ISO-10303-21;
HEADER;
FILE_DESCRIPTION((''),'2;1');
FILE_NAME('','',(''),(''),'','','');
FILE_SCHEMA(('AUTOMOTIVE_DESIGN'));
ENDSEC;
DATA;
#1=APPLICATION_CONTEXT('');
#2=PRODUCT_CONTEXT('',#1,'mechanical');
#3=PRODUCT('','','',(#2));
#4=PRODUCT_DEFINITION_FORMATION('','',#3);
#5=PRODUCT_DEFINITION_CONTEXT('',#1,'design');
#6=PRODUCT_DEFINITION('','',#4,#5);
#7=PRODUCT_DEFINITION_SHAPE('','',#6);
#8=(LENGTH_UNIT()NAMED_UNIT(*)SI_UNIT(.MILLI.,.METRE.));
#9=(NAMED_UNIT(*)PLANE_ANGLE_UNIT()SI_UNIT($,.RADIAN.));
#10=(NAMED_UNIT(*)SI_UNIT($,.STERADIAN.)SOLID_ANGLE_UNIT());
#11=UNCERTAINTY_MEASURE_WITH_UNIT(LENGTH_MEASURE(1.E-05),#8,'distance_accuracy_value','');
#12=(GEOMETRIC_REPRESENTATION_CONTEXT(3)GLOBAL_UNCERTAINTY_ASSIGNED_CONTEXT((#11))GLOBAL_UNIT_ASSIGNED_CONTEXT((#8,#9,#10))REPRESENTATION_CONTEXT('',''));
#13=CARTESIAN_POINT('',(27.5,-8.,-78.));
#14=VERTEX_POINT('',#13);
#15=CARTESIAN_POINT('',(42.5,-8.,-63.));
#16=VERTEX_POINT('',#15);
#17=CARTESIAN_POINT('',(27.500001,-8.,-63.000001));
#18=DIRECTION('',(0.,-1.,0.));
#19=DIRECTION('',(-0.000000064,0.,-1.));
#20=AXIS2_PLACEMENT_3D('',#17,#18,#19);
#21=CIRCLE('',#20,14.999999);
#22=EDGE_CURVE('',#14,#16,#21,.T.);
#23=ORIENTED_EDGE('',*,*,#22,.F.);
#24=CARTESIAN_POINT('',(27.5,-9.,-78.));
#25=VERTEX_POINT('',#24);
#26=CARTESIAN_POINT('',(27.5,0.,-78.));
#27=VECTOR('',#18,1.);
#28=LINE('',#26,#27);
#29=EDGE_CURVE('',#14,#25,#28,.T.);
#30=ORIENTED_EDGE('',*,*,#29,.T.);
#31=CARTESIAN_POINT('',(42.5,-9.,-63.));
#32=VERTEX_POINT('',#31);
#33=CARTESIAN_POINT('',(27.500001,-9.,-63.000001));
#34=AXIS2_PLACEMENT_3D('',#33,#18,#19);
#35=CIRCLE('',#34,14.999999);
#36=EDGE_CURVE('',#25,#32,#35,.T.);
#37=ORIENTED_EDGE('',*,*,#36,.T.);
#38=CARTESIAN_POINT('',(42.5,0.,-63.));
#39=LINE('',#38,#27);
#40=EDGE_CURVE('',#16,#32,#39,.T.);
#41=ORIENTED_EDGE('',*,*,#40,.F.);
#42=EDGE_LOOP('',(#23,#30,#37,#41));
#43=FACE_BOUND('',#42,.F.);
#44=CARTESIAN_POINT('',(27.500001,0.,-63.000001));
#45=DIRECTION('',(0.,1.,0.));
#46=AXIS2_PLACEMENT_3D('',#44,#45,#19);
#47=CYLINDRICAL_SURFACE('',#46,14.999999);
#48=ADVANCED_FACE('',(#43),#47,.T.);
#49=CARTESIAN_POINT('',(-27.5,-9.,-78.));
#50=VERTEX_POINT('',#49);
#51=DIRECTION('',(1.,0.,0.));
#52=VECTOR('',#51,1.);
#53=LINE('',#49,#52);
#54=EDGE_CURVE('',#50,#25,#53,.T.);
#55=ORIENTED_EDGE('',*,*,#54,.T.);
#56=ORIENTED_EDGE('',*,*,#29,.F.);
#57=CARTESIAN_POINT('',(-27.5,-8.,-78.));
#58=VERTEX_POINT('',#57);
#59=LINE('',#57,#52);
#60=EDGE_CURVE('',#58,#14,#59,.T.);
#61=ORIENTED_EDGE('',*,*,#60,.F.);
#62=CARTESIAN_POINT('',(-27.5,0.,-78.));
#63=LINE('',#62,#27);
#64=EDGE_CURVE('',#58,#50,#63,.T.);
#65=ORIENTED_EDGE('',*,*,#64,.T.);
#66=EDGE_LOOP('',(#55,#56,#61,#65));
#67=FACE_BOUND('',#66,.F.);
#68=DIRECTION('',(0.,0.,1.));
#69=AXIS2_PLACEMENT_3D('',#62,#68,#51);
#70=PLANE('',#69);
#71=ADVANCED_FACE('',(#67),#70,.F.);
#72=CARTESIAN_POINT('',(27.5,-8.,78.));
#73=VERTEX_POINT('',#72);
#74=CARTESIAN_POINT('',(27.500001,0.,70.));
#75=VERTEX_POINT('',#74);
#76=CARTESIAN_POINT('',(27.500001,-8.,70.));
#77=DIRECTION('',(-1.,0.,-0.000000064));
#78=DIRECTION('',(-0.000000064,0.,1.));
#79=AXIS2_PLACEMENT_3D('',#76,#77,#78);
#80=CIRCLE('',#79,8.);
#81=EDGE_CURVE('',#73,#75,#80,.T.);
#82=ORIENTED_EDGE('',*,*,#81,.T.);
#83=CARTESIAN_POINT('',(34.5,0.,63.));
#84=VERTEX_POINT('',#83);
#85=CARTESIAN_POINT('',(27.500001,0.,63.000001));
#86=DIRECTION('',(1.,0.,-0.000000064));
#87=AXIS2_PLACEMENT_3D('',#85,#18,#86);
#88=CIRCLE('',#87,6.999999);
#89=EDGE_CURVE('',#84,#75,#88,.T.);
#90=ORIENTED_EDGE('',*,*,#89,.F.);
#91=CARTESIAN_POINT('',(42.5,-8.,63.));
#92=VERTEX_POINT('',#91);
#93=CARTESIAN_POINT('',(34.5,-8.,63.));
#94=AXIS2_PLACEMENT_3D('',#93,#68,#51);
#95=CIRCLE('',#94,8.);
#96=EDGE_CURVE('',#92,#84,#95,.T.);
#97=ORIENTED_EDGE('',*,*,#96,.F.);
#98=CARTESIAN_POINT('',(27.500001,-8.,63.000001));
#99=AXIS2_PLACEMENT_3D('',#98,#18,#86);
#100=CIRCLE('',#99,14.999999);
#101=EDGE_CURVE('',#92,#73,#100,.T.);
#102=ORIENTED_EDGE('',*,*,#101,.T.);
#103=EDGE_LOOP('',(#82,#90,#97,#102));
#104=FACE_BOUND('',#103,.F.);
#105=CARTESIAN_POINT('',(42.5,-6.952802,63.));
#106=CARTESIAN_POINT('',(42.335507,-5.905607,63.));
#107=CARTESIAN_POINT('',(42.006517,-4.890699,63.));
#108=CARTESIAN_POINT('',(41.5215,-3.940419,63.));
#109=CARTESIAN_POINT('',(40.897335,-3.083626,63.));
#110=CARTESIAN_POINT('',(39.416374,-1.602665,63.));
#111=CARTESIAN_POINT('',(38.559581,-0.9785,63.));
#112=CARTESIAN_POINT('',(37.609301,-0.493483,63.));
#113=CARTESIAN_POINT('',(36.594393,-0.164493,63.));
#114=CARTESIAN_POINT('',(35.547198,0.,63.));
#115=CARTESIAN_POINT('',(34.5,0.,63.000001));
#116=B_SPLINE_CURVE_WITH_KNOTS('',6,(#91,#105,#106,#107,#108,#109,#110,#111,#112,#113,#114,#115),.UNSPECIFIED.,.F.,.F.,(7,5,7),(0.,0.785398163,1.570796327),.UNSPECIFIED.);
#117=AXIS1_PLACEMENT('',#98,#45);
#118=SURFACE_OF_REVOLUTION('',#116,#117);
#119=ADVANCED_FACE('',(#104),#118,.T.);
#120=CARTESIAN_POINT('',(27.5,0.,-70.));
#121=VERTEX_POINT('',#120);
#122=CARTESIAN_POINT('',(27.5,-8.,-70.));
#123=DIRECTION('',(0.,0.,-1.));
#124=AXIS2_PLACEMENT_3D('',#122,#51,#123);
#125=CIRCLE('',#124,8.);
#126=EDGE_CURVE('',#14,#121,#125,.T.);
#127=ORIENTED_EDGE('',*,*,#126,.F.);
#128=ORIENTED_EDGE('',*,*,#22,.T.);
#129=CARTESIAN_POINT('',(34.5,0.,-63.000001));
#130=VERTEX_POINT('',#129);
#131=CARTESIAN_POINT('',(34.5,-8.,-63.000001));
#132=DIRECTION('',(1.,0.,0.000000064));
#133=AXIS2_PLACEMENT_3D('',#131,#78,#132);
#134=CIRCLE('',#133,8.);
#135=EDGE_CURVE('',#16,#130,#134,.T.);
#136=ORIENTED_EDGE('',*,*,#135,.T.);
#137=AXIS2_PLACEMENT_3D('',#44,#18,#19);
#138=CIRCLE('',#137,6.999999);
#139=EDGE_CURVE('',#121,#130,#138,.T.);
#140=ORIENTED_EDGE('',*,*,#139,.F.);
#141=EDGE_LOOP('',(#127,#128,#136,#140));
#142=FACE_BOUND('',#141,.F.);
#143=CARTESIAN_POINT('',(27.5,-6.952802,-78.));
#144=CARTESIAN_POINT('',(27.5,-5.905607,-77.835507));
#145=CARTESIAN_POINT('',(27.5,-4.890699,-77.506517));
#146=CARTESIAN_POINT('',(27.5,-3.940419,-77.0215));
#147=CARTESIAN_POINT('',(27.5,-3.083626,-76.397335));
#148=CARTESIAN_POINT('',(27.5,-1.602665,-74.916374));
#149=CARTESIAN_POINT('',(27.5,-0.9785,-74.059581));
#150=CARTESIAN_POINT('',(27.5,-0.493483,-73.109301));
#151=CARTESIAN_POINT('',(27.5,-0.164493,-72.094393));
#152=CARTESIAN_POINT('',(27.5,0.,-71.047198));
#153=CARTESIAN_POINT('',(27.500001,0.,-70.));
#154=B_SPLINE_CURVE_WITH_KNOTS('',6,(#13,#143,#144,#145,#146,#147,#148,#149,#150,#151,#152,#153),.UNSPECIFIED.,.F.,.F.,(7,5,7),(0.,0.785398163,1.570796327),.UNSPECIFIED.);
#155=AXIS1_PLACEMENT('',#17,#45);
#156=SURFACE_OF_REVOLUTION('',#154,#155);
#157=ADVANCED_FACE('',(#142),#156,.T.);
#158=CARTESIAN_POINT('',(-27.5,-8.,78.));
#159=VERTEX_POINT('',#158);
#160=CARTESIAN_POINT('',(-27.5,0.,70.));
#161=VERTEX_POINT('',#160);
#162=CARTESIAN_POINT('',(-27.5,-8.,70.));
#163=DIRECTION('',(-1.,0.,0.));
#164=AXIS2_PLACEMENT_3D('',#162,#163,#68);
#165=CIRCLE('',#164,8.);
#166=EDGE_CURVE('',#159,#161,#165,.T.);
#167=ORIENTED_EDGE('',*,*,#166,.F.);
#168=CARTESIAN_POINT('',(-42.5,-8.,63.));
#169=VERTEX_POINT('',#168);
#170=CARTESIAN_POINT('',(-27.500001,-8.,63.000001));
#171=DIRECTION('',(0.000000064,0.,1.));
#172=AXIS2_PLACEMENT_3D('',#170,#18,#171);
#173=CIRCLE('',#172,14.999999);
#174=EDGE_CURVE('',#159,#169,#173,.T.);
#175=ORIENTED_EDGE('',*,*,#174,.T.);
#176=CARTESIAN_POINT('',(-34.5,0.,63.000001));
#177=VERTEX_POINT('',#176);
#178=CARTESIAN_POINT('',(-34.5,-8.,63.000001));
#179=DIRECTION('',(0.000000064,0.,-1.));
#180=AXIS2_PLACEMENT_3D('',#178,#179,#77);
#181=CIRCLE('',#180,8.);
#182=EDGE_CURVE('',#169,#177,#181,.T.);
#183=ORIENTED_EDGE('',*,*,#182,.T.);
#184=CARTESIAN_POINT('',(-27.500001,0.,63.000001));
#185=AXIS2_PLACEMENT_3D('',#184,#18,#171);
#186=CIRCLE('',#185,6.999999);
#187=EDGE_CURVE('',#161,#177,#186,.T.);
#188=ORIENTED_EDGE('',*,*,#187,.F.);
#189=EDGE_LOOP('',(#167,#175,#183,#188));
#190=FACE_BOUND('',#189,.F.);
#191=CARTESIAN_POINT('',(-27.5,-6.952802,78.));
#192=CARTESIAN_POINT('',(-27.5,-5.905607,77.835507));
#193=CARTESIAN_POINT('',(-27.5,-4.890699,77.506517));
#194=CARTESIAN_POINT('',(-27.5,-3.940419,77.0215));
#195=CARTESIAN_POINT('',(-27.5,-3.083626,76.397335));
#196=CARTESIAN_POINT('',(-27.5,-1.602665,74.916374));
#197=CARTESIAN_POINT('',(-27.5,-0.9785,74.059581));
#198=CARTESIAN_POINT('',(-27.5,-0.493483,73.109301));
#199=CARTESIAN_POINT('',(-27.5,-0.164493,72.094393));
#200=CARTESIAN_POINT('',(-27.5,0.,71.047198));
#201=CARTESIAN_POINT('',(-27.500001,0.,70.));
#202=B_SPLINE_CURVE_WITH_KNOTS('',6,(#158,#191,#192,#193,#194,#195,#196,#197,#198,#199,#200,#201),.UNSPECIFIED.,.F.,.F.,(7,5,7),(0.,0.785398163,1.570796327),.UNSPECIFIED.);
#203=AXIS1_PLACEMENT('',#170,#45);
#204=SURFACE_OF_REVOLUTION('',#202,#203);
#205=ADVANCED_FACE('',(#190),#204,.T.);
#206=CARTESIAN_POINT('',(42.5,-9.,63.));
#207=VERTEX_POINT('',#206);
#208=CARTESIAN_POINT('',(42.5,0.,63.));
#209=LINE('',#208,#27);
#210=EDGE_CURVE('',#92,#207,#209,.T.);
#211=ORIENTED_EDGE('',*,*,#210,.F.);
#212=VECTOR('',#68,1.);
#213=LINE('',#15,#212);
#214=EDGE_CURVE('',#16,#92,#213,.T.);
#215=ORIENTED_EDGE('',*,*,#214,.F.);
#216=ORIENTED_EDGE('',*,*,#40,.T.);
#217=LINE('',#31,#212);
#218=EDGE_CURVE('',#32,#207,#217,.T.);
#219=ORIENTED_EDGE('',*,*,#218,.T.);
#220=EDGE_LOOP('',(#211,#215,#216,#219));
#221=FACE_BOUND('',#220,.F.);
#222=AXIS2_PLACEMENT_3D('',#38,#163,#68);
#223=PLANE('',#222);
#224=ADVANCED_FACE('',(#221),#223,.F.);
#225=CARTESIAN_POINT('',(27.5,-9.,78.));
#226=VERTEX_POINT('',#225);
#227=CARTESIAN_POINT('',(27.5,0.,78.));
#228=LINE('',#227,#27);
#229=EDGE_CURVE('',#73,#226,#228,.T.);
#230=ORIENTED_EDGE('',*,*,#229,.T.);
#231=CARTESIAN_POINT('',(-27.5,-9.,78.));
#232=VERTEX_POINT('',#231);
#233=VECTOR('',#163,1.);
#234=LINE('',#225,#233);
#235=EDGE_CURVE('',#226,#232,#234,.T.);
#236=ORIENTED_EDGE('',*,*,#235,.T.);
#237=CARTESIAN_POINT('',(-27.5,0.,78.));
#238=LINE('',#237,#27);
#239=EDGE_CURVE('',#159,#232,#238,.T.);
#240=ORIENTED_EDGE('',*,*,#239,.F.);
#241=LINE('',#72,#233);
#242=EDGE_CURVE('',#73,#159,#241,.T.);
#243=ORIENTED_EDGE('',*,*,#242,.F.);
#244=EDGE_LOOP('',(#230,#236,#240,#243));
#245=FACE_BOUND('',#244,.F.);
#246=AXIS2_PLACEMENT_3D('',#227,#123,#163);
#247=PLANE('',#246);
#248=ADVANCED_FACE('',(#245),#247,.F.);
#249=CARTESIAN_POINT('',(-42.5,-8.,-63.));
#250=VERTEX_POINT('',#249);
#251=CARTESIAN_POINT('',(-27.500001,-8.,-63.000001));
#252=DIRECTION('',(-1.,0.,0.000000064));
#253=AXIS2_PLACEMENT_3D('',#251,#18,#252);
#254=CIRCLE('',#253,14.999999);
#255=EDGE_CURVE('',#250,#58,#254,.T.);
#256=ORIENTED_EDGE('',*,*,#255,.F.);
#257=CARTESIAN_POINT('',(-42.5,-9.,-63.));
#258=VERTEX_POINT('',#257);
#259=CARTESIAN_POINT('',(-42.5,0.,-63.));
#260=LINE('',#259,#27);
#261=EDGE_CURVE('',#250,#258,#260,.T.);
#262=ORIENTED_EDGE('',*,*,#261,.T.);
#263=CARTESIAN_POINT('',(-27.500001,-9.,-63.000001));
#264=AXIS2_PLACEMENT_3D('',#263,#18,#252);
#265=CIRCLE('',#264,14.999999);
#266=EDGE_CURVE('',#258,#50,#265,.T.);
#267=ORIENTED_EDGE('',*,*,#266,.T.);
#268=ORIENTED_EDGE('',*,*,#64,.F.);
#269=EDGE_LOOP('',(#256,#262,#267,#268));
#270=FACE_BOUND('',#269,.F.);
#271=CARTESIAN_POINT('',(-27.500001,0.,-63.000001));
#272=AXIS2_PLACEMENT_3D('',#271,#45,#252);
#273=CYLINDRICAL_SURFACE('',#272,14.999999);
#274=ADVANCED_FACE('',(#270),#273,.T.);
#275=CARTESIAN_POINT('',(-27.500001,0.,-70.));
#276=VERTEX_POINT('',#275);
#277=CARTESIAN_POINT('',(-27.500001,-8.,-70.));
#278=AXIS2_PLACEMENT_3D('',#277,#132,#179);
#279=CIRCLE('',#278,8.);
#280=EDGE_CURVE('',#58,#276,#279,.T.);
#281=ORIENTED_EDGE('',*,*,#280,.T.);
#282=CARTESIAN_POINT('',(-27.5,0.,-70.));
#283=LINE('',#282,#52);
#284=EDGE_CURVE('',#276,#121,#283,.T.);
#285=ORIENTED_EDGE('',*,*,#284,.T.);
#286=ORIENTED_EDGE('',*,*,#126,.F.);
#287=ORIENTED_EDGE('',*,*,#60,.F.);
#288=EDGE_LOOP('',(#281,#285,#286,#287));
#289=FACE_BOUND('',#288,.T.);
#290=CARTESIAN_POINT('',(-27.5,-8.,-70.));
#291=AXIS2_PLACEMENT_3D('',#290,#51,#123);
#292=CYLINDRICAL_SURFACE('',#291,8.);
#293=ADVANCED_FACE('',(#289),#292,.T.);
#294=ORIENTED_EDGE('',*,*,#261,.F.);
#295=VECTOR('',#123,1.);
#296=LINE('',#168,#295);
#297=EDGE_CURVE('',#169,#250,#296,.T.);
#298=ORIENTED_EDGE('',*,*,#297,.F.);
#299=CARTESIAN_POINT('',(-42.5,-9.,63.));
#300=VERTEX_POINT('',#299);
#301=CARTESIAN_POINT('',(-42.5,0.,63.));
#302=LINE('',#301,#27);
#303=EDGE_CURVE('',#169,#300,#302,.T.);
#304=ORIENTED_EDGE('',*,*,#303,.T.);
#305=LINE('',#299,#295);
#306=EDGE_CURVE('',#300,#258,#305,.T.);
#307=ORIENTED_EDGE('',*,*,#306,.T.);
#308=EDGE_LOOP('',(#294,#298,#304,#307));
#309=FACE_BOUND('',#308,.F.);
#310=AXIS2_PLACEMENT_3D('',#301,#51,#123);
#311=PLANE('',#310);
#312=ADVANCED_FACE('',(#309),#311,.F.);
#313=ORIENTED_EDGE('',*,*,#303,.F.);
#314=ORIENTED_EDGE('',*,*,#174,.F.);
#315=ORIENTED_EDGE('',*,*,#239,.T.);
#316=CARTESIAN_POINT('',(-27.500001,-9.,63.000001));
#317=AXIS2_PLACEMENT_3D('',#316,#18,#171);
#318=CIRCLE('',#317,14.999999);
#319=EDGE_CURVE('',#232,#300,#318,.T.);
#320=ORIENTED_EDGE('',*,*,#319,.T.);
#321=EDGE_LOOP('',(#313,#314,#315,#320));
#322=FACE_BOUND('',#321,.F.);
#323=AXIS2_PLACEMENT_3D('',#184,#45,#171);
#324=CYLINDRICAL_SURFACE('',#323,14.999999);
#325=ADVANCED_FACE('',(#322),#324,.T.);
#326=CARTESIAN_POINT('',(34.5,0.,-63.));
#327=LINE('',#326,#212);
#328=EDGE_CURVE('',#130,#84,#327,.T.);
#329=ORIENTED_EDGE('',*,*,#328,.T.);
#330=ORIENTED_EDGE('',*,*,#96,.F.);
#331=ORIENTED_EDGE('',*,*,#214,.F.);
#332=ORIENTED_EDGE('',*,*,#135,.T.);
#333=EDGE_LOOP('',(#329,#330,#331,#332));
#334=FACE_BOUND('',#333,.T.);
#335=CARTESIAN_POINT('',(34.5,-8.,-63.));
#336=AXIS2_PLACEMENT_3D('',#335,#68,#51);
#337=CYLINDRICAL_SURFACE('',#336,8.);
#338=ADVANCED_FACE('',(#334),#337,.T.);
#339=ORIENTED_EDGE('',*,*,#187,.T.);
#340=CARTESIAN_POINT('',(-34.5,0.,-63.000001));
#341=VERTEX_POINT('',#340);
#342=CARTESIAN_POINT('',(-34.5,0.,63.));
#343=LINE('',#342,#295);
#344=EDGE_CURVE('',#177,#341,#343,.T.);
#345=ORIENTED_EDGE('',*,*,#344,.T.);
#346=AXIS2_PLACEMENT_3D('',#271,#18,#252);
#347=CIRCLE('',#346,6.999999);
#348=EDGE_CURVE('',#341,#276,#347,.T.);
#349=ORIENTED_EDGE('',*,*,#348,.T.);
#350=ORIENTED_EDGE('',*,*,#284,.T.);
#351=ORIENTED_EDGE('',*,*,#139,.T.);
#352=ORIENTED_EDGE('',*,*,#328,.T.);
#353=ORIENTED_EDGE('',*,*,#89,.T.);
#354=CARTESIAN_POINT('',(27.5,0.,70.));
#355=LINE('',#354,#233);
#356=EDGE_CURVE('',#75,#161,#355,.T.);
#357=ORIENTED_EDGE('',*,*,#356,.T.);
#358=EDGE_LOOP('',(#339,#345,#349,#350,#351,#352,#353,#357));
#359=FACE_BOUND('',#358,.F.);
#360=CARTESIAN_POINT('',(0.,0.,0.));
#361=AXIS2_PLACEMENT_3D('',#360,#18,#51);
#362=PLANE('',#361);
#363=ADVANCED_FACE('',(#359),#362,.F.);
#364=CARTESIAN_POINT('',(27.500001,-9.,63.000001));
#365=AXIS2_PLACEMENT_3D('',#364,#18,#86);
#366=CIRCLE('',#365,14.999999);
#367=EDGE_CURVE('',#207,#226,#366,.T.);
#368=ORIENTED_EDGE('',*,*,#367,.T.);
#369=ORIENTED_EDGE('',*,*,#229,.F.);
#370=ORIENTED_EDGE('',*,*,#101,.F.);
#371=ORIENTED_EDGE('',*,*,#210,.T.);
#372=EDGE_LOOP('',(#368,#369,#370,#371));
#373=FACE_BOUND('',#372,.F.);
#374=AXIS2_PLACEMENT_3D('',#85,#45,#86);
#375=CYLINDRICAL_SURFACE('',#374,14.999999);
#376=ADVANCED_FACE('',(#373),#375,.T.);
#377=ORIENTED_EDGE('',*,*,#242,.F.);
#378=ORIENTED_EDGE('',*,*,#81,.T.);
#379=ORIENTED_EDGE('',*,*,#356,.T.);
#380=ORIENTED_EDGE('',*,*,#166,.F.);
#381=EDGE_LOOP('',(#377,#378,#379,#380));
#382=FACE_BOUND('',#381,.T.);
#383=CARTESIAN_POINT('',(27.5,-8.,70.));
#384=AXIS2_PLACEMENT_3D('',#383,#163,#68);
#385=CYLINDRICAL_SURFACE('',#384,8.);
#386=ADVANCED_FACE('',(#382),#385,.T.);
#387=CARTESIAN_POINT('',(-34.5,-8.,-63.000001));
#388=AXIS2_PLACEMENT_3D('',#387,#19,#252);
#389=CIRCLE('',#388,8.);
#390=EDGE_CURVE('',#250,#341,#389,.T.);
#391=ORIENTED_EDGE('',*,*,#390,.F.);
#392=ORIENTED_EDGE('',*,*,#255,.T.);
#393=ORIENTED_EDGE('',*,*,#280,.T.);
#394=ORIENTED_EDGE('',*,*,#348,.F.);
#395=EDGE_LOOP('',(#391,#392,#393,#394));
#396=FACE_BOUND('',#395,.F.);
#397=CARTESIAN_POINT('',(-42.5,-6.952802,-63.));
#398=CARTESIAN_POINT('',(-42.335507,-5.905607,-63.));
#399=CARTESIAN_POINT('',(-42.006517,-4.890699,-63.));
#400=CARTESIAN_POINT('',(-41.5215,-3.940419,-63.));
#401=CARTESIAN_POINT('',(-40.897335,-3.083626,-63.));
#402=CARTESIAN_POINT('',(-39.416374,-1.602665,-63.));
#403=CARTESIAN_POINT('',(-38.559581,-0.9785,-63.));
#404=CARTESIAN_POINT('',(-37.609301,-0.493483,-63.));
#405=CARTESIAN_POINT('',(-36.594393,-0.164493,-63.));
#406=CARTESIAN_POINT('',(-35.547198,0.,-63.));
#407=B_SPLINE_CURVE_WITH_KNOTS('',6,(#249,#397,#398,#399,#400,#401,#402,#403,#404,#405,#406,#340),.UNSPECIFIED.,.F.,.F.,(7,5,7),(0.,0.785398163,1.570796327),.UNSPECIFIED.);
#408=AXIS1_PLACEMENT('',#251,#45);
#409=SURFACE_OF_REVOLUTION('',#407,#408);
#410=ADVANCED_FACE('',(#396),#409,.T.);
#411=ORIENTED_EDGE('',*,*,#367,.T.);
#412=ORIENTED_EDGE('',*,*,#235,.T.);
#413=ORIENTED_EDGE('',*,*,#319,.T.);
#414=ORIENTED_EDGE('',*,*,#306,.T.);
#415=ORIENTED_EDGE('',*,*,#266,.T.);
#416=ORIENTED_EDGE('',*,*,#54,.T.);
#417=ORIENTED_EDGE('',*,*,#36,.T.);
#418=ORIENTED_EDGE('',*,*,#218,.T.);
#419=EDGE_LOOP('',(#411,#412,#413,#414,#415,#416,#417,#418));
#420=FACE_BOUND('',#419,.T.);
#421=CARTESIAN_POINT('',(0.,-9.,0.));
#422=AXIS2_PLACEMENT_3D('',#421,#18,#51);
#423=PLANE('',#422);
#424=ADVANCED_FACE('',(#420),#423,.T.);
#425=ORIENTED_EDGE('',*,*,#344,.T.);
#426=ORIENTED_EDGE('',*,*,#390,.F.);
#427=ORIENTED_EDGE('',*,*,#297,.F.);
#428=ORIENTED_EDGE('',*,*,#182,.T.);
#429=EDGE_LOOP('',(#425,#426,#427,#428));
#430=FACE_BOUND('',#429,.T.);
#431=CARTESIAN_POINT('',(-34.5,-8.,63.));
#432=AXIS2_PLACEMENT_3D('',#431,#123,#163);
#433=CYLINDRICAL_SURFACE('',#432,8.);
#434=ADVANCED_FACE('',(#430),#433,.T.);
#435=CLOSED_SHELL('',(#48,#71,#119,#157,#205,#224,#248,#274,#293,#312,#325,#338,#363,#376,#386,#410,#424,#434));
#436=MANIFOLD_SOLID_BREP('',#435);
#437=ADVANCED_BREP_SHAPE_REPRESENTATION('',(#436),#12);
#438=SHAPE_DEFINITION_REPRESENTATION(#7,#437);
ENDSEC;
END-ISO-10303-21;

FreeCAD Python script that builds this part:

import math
import FreeCAD as App
import Part
import Sketcher

V = App.Vector


def edges_at(feature, points):
    """Names of the edges that pass closest to the given points."""
    edges = feature.Shape.Edges
    near = lambda p: min(range(len(edges)), key=lambda i: edges[i].distToShape(Part.Vertex(*p))[0])
    return sorted({f"Edge{near(p) + 1}" for p in points})

doc = App.newDocument("Part")
body = doc.addObject("PartDesign::Body", "Body")

# Sketch on XZ plane
sketch1 = body.newObject("Sketcher::SketchObject", "Sketch")
sketch1.AttachmentSupport = (doc.getObject("XZ_Plane"), [""])
sketch1.MapMode = "FlatFace"
sketch1.addGeometry([
    Part.ArcOfCircle(Part.Circle(V(-28, -63, 0), V(0, 0, 1), 15), math.radians(180), math.radians(270)),  # 0
    Part.LineSegment(V(-28, -78, 0), V(28, -78, 0)),  # 1
    Part.ArcOfCircle(Part.Circle(V(28, -63, 0), V(0, 0, 1), 15), math.radians(-90), math.radians(0)),  # 2
    Part.LineSegment(V(42, -63, 0), V(42, 63, 0)),  # 3
    Part.ArcOfCircle(Part.Circle(V(28, 63, 0), V(0, 0, 1), 15), math.radians(0), math.radians(90)),  # 4
    Part.LineSegment(V(28, 78, 0), V(-28, 78, 0)),  # 5
    Part.ArcOfCircle(Part.Circle(V(-28, 63, 0), V(0, 0, 1), 15), math.radians(90), math.radians(180)),  # 6
    Part.LineSegment(V(-42, 63, 0), V(-42, -63, 0)),  # 7
], False)
sketch1.addConstraint([
    Sketcher.Constraint("Tangent", 0, 2, 1, 1),
    Sketcher.Constraint("Tangent", 1, 2, 2, 1),
    Sketcher.Constraint("Tangent", 2, 2, 3, 1),
    Sketcher.Constraint("Tangent", 3, 2, 4, 1),
    Sketcher.Constraint("Tangent", 4, 2, 5, 1),
    Sketcher.Constraint("Tangent", 5, 2, 6, 1),
    Sketcher.Constraint("Tangent", 6, 2, 7, 1),
    Sketcher.Constraint("Tangent", 7, 2, 0, 1),
    Sketcher.Constraint("Horizontal", 1),
    Sketcher.Constraint("Vertical", 3),
    Sketcher.Constraint("Horizontal", 5),
    Sketcher.Constraint("Vertical", 7),
    Sketcher.Constraint("Equal", 0, 2),
    Sketcher.Constraint("Equal", 2, 4),
    Sketcher.Constraint("Equal", 4, 6),
    Sketcher.Constraint("Symmetric", 0, 3, 4, 3, -1, 1),
    Sketcher.Constraint("Radius", 0, 14.999999),
    Sketcher.Constraint("DistanceX", 1, 1, 1, 2, 55.0),
    Sketcher.Constraint("DistanceY", 3, 1, 3, 2, 126.0),
])
pad1 = body.newObject("PartDesign::Pad", "Pad")
pad1.Profile = sketch1
pad1.Length = 9
doc.recompute()

fillet = body.newObject("PartDesign::Fillet", "Fillet")
fillet.Base = (pad1, edges_at(pad1, [
    (-38.107, 0, -73.607),
    (0, 0, -78),
    (38.107, 0, -73.607),
    (42.5, 0, 0),
    (38.107, 0, 73.607),
    (0, 0, 78),
    (-38.107, 0, 73.607),
    (-42.5, 0, 0),
]))
fillet.Radius = 8

doc.recompute()
